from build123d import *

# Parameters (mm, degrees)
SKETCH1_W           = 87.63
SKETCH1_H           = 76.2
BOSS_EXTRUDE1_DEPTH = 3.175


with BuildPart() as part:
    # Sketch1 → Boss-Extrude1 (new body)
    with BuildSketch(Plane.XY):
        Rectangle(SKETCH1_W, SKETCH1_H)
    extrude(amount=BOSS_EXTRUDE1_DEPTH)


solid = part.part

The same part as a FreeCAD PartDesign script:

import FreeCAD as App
import Part
import Sketcher

V = App.Vector
Q = App.Units.Quantity

doc = App.newDocument("Part")
body = doc.addObject("PartDesign::Body", "Body")

# Sketch on XY plane
sketch1 = body.newObject("Sketcher::SketchObject", "Sketch")
sketch1.AttachmentSupport = (doc.getObject("XY_Plane"), [""])
sketch1.MapMode = "FlatFace"
sketch1.addGeometry(Part.LineSegment(V(-44, 38, 0), V(-44, -38, 0)), False)
sketch1.addGeometry(Part.LineSegment(V(-44, -38, 0), V(44, -38, 0)), False)
sketch1.addGeometry(Part.LineSegment(V(44, -38, 0), V(44, 38, 0)), False)
sketch1.addGeometry(Part.LineSegment(V(44, 38, 0), V(-44, 38, 0)), False)
sketch1.addConstraint(Sketcher.Constraint("Coincident", 0, 2, 1, 1))
sketch1.addConstraint(Sketcher.Constraint("Coincident", 1, 2, 2, 1))
sketch1.addConstraint(Sketcher.Constraint("Coincident", 2, 2, 3, 1))
sketch1.addConstraint(Sketcher.Constraint("Coincident", 3, 2, 0, 1))
sketch1.addConstraint(Sketcher.Constraint("Vertical", 0))
sketch1.addConstraint(Sketcher.Constraint("Horizontal", 1))
sketch1.addConstraint(Sketcher.Constraint("Vertical", 2))
sketch1.addConstraint(Sketcher.Constraint("Horizontal", 3))
sketch1.addConstraint(Sketcher.Constraint("Symmetric", 0, 2, 2, 2, -1, 1))
sketch1.addConstraint(Sketcher.Constraint("DistanceY", 0, 2, 0, 1, Q("3 in")))
sketch1.addConstraint(Sketcher.Constraint("DistanceX", 1, 1, 1, 2, Q("3.45 in")))
pad1 = body.newObject("PartDesign::Pad", "Pad")
pad1.Profile = sketch1
pad1.Length = Q("0.125 in")

doc.recompute()
